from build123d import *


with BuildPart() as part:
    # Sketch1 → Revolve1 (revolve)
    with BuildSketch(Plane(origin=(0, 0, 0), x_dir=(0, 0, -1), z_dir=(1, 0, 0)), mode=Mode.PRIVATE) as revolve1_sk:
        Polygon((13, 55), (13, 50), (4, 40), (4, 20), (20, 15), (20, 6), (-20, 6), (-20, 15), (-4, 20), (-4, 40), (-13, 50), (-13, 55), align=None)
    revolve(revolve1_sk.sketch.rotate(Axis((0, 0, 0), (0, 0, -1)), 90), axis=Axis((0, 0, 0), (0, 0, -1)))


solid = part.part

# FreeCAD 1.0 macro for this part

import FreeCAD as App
import Part
import Sketcher
Q = App.Units.Quantity


def add_polygon(sketch, points):
    """Adds a closed chain of lines whose ends are joined by coincident constraints."""
    first, n = sketch.GeometryCount, len(points)
    for a, b in zip(points, points[1:] + points[:1]):
        sketch.addGeometry(Part.LineSegment(App.Vector(*a, 0), App.Vector(*b, 0)), False)
    for i in range(n):
        sketch.addConstraint(Sketcher.Constraint("Coincident", first + i, 2, first + (i + 1) % n, 1))

doc = App.newDocument("Part")
params = doc.addObject("Spreadsheet::Sheet", "Params")
for row, (alias, value) in enumerate([
    ("sketch1_width", "5 mm"),
    ("sketch1_width2", "20 mm"),
    ("sketch1_width3", "9 mm"),
    ("sketch1_height", "26 mm"),
    ("sketch1_height2", "40 mm"),
    ("revolution_angle", "360 deg"),
], start=1):
    params.set(f"A{row}", alias)
    params.set(f"B{row}", "=" + value)
    params.setAlias(f"B{row}", alias)

body = doc.addObject("PartDesign::Body", "Body")

# Sketch on YZ plane
sketch1 = body.newObject("Sketcher::SketchObject", "Sketch")
sketch1.AttachmentSupport = (doc.getObject("YZ_Plane"), [""])
sketch1.MapMode = "FlatFace"
add_polygon(sketch1, [(50, -13), (55, -13), (55, 13), (50, 13), (40, 4), (20, 4), (15, 20), (6, 20), (6, -20), (15, -20), (20, -4), (40, -4)])  # lines 0-11
sketch1.addConstraint([
    Sketcher.Constraint("Horizontal", 0),
    Sketcher.Constraint("Vertical", 1),
    Sketcher.Constraint("Horizontal", 2),
    Sketcher.Constraint("Horizontal", 4),
    Sketcher.Constraint("Horizontal", 6),
    Sketcher.Constraint("Vertical", 7),
    Sketcher.Constraint("Horizontal", 8),
    Sketcher.Constraint("Horizontal", 10),
    Sketcher.Constraint("Symmetric", 5, 2, 8, 2, -1),
    Sketcher.Constraint("Symmetric", 4, 2, 9, 2, -1),
    Sketcher.Constraint("Symmetric", 2, 2, 11, 2, -1),
    Sketcher.Constraint("Vertical", 3, 2, 10, 2),
    Sketcher.Constraint("DistanceX", 0, 1, 0, 2, Q("5 mm")),
    Sketcher.Constraint("DistanceX", 4, 2, 4, 1, Q("20 mm")),
    Sketcher.Constraint("DistanceX", 6, 2, 6, 1, Q("9 mm")),
    Sketcher.Constraint("DistanceY", 1, 1, 1, 2, Q("26 mm")),
    Sketcher.Constraint("DistanceY", 7, 2, 7, 1, Q("40 mm")),
    Sketcher.Constraint("DistanceX", -1, 1, 0, 2, Q("55 mm")),
    Sketcher.Constraint("DistanceX", -1, 1, 3, 2, Q("40 mm")),
    Sketcher.Constraint("DistanceY", -1, 1, 3, 2, Q("4 mm")),
    Sketcher.Constraint("DistanceX", -1, 1, 5, 2, Q("15 mm")),
])
sketch1.setExpression("Constraints[24]", "Params.sketch1_width")
sketch1.setExpression("Constraints[25]", "Params.sketch1_width2")
sketch1.setExpression("Constraints[26]", "Params.sketch1_width3")
sketch1.setExpression("Constraints[27]", "Params.sketch1_height")
sketch1.setExpression("Constraints[28]", "Params.sketch1_height2")
revolution = body.newObject("PartDesign::Revolution", "Revolution")
revolution.Profile = sketch1
revolution.ReferenceAxis = (sketch1, ["V_Axis"])
revolution.setExpression("Angle", "Params.revolution_angle")

doc.recompute()
